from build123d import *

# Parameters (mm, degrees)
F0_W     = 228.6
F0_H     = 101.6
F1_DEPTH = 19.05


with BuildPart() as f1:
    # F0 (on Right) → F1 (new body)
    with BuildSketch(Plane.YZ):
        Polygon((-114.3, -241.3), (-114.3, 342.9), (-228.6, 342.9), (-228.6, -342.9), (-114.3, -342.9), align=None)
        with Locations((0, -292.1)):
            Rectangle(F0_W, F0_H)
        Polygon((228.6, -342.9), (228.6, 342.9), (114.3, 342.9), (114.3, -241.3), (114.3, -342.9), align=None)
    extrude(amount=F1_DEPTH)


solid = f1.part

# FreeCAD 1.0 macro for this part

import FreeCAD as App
import Part
import Sketcher
from FreeCAD import Vector
Q = App.Units.Quantity

doc = App.newDocument("Part")
params = doc.addObject("Spreadsheet::Sheet", "Params")
for row, (alias, value) in enumerate([
    ("sketch1_width", "18 in"),
    ("sketch1_width2", "9 in"),
    ("sketch1_height", "27 in"),
    ("sketch1_height2", "23 in"),
    ("pad1_length", "0.75 in"),
], start=1):
    params.set(f"A{row}", alias)
    params.set(f"B{row}", "=" + value)
    params.setAlias(f"B{row}", alias)

body = doc.addObject("PartDesign::Body", "Body")

# Sketch on YZ plane
sketch1 = body.newObject("Sketcher::SketchObject", "Sketch")
sketch1.AttachmentSupport = (doc.getObject("YZ_Plane"), [""])
sketch1.MapMode = "FlatFace"
sketch1.addGeometry([
    Part.LineSegment(Vector(-114, 343, 0), Vector(-229, 343, 0)),  # 0
    Part.LineSegment(Vector(-229, 343, 0), Vector(-229, -343, 0)),  # 1
    Part.LineSegment(Vector(-229, -343, 0), Vector(229, -343, 0)),  # 2
    Part.LineSegment(Vector(229, -343, 0), Vector(229, 343, 0)),  # 3
    Part.LineSegment(Vector(229, 343, 0), Vector(114, 343, 0)),  # 4
    Part.LineSegment(Vector(114, 343, 0), Vector(114, -241, 0)),  # 5
    Part.LineSegment(Vector(114, -241, 0), Vector(-114, -241, 0)),  # 6
    Part.LineSegment(Vector(-114, -241, 0), Vector(-114, 343, 0)),  # 7
], False)
sketch1.addConstraint([
    Sketcher.Constraint("Coincident", 0, 2, 1, 1),
    Sketcher.Constraint("Coincident", 1, 2, 2, 1),
    Sketcher.Constraint("Coincident", 2, 2, 3, 1),
    Sketcher.Constraint("Coincident", 3, 2, 4, 1),
    Sketcher.Constraint("Coincident", 4, 2, 5, 1),
    Sketcher.Constraint("Coincident", 5, 2, 6, 1),
    Sketcher.Constraint("Coincident", 6, 2, 7, 1),
    Sketcher.Constraint("Coincident", 7, 2, 0, 1),
    Sketcher.Constraint("Horizontal", 0),
    Sketcher.Constraint("Vertical", 1),
    Sketcher.Constraint("Horizontal", 2),
    Sketcher.Constraint("Vertical", 3),
    Sketcher.Constraint("Horizontal", 4),
    Sketcher.Constraint("Vertical", 5),
    Sketcher.Constraint("Horizontal", 6),
    Sketcher.Constraint("Vertical", 7),
    Sketcher.Constraint("Symmetric", 0, 2, 2, 2, -1, 1),
    Sketcher.Constraint("Symmetric", 4, 2, 7, 2, -2),
    Sketcher.Constraint("DistanceX", 2, 1, 2, 2, Q("18 in")),
    Sketcher.Constraint("DistanceX", 6, 2, 6, 1, Q("9 in")),
    Sketcher.Constraint("DistanceY", 1, 2, 1, 1, Q("27 in")),
    Sketcher.Constraint("DistanceY", 5, 2, 5, 1, Q("23 in")),
])
sketch1.setExpression("Constraints[18]", "Params.sketch1_width")
sketch1.setExpression("Constraints[19]", "Params.sketch1_width2")
sketch1.setExpression("Constraints[20]", "Params.sketch1_height")
sketch1.setExpression("Constraints[21]", "Params.sketch1_height2")
pad1 = body.newObject("PartDesign::Pad", "Pad")
pad1.Profile = sketch1
pad1.setExpression("Length", "Params.pad1_length")

doc.recompute()
